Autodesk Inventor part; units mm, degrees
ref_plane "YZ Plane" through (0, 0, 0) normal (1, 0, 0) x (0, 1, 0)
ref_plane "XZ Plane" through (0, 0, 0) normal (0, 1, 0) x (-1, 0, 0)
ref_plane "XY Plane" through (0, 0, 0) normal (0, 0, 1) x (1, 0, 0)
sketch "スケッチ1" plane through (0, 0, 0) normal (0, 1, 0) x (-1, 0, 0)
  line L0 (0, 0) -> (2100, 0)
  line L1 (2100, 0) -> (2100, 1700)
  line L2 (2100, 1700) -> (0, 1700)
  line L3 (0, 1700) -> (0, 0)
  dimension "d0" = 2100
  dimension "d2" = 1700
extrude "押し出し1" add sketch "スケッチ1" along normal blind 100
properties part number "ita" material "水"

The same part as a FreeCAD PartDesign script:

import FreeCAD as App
import Part
import Sketcher
Q = App.Units.Quantity

doc = App.newDocument("Part")
body = doc.addObject("PartDesign::Body", "Body")

# Sketch on XZ plane
sketch1 = body.newObject("Sketcher::SketchObject", "Sketch")
sketch1.AttachmentSupport = (doc.getObject("XZ_Plane"), [""])
sketch1.MapMode = "FlatFace"
sketch1.addGeometry([
    Part.LineSegment(App.Vector(0, 1700, 0), App.Vector(0, 0, 0)),
    Part.LineSegment(App.Vector(0, 0, 0), App.Vector(-2100, 0, 0)),
    Part.LineSegment(App.Vector(-2100, 0, 0), App.Vector(-2100, 1700, 0)),
    Part.LineSegment(App.Vector(-2100, 1700, 0), App.Vector(0, 1700, 0)),
], False)
sketch1.addConstraint([
    Sketcher.Constraint("Coincident", 0, 2, 1, 1),
    Sketcher.Constraint("Coincident", 1, 2, 2, 1),
    Sketcher.Constraint("Coincident", 2, 2, 3, 1),
    Sketcher.Constraint("Coincident", 3, 2, 0, 1),
    Sketcher.Constraint("Vertical", 0),
    Sketcher.Constraint("Horizontal", 1),
    Sketcher.Constraint("Vertical", 2),
    Sketcher.Constraint("Horizontal", 3),
    Sketcher.Constraint("Coincident", 0, 2, -1, 1),
    Sketcher.Constraint("DistanceX", 1, 2, 1, 1, Q("2100 mm")),
    Sketcher.Constraint("DistanceY", 0, 2, 0, 1, Q("1700 mm")),
])
pad1 = body.newObject("PartDesign::Pad", "Pad")
pad1.Profile = sketch1
pad1.Length = 100
pad1.Reversed = True

doc.recompute()
